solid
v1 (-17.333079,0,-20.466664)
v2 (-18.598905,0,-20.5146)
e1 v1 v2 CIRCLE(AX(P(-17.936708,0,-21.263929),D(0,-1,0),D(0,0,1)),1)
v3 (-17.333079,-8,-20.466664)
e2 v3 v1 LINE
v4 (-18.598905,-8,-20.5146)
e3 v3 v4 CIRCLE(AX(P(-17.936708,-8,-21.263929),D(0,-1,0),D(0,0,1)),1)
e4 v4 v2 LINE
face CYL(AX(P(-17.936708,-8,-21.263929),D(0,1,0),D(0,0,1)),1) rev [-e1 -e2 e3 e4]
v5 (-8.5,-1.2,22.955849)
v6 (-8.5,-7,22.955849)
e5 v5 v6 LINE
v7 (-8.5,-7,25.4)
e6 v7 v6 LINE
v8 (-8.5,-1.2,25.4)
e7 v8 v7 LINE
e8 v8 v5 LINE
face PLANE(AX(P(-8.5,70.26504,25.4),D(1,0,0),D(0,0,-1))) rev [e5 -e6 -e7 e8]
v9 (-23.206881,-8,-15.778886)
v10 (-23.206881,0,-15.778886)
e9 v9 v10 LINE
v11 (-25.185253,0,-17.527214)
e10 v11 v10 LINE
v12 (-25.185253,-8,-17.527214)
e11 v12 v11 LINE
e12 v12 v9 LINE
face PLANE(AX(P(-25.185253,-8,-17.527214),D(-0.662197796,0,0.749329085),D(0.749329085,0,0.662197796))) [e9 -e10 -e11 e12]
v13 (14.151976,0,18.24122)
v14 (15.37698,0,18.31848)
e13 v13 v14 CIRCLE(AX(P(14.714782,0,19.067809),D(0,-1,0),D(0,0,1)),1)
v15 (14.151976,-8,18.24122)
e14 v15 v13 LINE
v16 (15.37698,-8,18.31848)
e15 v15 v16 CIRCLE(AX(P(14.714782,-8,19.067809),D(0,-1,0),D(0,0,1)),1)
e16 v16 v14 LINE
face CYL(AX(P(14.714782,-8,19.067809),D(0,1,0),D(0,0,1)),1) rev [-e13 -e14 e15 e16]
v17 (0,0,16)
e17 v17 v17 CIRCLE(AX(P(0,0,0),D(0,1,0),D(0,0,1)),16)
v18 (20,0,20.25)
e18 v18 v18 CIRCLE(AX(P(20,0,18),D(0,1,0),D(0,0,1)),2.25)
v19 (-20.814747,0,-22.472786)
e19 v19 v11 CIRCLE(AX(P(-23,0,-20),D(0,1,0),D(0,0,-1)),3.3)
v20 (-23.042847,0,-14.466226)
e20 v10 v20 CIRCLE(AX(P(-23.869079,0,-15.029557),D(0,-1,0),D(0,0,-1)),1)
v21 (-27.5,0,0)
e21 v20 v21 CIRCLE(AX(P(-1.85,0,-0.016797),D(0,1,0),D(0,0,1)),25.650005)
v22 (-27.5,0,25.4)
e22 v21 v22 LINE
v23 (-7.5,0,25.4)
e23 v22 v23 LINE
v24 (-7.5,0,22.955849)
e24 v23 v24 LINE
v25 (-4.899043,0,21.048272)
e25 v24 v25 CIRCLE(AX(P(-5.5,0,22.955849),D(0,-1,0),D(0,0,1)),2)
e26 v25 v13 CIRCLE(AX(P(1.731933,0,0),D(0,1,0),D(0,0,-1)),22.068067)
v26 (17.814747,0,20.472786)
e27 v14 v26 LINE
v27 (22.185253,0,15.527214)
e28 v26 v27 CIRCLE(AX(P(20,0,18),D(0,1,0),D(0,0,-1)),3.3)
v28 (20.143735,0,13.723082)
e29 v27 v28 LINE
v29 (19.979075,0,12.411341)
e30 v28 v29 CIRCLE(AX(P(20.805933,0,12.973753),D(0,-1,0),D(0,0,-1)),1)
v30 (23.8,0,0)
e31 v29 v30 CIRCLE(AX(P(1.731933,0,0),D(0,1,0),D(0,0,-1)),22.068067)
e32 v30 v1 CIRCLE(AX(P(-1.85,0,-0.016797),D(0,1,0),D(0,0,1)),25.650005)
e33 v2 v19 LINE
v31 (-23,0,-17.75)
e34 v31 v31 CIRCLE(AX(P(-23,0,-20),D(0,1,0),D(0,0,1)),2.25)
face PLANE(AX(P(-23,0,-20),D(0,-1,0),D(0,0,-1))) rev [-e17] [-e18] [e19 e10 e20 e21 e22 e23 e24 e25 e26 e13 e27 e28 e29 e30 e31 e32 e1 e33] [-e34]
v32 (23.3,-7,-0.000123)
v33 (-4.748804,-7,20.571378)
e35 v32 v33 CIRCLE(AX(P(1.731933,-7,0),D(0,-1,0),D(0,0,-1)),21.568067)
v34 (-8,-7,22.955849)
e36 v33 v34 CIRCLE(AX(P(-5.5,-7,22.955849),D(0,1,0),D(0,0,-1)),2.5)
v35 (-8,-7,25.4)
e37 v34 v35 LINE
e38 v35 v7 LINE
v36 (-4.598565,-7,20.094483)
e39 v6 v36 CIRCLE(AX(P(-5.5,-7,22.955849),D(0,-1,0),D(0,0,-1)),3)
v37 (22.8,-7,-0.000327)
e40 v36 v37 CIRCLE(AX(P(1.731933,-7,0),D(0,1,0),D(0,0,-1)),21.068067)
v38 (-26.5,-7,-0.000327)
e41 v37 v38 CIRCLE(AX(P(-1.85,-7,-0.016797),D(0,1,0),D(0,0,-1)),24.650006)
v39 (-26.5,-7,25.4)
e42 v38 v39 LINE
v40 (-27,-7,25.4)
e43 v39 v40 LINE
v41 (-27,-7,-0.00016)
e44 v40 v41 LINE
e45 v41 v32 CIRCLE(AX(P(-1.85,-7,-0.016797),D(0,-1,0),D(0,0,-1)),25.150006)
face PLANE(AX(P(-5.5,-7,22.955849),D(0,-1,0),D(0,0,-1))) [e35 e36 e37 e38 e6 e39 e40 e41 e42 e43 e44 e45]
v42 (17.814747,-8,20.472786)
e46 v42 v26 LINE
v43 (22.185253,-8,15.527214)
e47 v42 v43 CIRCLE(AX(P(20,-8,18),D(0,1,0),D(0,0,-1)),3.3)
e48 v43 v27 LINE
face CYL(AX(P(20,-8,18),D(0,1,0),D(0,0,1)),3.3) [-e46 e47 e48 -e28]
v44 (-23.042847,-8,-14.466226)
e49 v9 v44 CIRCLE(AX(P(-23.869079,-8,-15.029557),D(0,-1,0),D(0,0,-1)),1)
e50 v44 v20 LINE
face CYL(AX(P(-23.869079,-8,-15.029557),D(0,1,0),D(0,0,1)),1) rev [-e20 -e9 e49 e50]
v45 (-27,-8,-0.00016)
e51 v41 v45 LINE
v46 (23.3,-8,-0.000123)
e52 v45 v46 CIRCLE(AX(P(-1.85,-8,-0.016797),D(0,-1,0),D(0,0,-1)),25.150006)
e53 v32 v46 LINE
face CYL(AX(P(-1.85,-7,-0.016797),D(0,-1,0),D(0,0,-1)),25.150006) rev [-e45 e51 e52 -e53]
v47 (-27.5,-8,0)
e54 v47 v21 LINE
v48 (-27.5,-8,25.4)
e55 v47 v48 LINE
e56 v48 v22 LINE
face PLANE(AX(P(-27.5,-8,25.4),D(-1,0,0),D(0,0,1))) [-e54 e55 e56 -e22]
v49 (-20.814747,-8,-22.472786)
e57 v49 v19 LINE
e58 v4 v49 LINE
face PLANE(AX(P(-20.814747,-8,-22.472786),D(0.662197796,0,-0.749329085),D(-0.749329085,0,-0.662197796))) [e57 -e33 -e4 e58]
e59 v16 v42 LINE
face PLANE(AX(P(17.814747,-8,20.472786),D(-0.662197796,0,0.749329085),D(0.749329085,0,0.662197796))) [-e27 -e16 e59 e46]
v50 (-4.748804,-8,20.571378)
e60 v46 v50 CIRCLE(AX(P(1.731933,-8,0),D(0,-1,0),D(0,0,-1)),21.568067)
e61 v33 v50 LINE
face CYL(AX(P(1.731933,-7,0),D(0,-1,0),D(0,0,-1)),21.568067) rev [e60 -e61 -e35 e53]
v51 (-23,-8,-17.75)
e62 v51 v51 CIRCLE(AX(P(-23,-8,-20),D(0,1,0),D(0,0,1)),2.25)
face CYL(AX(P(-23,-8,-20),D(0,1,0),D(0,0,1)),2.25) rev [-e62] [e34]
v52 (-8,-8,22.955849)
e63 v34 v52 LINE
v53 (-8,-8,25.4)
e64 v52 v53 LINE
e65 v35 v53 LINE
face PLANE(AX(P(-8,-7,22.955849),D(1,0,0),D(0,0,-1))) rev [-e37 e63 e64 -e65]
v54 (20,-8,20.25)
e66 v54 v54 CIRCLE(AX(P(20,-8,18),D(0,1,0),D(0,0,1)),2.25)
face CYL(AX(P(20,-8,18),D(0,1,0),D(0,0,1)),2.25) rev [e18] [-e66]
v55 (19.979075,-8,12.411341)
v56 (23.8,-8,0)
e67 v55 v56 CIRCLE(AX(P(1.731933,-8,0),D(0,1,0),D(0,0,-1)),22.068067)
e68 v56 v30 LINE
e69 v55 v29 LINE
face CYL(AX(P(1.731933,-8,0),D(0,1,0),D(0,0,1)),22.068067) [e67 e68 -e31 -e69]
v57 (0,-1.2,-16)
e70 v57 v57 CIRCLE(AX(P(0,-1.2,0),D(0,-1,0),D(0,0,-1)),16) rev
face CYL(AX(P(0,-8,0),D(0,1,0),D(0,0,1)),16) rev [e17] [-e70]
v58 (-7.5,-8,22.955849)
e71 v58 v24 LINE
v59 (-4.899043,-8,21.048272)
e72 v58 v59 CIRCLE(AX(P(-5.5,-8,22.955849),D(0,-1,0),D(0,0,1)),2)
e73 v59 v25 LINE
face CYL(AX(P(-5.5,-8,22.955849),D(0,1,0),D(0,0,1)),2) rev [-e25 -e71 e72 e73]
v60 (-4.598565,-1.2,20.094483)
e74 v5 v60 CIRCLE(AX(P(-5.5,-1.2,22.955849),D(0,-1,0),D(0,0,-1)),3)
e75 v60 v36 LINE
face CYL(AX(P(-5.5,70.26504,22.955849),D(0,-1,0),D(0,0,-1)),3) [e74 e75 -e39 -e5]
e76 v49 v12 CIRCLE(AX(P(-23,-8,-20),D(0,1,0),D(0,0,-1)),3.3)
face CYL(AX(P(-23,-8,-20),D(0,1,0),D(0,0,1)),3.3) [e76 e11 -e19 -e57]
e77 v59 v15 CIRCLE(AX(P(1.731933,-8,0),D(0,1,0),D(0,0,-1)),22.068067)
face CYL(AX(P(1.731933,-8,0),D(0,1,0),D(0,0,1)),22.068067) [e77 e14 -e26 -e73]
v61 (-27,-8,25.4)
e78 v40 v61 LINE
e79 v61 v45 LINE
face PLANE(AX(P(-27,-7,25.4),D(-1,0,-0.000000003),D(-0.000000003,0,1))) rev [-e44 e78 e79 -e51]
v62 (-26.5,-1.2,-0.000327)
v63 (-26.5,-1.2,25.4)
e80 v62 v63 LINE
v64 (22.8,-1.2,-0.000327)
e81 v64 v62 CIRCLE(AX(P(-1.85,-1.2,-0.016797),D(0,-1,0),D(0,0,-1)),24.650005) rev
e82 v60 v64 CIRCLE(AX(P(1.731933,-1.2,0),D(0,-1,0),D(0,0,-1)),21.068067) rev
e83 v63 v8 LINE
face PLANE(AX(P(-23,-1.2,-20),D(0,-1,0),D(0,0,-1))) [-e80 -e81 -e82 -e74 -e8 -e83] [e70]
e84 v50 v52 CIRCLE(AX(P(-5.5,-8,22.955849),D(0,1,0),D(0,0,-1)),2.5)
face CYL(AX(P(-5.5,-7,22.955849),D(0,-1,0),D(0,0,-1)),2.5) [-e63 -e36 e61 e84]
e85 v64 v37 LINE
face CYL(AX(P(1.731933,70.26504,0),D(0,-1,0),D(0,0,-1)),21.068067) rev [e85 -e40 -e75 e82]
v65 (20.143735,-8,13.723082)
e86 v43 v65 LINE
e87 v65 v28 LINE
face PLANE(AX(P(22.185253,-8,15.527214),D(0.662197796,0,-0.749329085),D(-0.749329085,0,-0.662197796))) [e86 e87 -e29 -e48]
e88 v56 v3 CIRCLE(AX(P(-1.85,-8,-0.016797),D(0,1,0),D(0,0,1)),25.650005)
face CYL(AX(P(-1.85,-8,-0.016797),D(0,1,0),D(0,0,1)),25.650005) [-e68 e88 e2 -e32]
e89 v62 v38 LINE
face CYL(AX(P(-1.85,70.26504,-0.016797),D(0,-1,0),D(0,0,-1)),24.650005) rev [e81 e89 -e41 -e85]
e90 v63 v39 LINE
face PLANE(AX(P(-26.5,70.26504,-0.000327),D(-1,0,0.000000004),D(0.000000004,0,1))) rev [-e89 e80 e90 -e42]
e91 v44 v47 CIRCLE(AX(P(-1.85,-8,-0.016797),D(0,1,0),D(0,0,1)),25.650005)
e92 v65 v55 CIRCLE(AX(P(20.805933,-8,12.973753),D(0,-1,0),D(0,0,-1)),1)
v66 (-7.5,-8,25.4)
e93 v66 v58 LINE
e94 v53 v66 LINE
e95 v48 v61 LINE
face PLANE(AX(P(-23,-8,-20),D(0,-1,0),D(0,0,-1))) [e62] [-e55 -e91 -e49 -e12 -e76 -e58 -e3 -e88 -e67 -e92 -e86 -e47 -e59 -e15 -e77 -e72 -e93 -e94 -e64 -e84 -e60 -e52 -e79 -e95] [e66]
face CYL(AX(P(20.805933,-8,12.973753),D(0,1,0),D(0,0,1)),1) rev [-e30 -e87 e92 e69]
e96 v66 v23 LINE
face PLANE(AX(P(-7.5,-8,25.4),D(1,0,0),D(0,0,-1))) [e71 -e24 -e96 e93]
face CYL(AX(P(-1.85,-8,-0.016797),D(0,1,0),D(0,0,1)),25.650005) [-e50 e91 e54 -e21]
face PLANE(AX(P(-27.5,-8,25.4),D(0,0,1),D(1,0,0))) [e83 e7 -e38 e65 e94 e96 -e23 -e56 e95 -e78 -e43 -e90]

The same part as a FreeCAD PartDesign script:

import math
import FreeCAD as App
import Part
import Sketcher
Q = App.Units.Quantity

doc = App.newDocument("Part")
body = doc.addObject("PartDesign::Body", "Body")

# Sketch on XZ plane
sketch1 = body.newObject("Sketcher::SketchObject", "Sketch")
sketch1.AttachmentSupport = (doc.getObject("XZ_Plane"), [""])
sketch1.MapMode = "FlatFace"
sketch1.addGeometry([
    Part.LineSegment(App.Vector(-27.5, 25.4, 0), App.Vector(-7.5, 25.4, 0)),  # 0
    Part.LineSegment(App.Vector(-7.5, 25.4, 0), App.Vector(-7.5, 23, 0)),  # 1
    Part.ArcOfCircle(Part.Circle(App.Vector(-5.5, 23, 0), App.Vector(0, 0, 1), 2), math.radians(-180), math.radians(-73)),  # 2
    Part.ArcOfCircle(Part.Circle(App.Vector(1.7, 0, 0), App.Vector(0, 0, 1), 22.1), math.radians(56), math.radians(107)),  # 3
    Part.ArcOfCircle(Part.Circle(App.Vector(14.7, 19.1, 0), App.Vector(0, 0, 1), 1), math.radians(-124), math.radians(-49)),  # 4
    Part.LineSegment(App.Vector(15.4, 18.3, 0), App.Vector(17.8, 20.5, 0)),  # 5
    Part.ArcOfCircle(Part.Circle(App.Vector(20, 18, 0), App.Vector(0, 0, 1), 3.3), math.radians(-49), math.radians(131)),  # 6
    Part.LineSegment(App.Vector(22.2, 15.5, 0), App.Vector(20.1, 13.7, 0)),  # 7
    Part.ArcOfCircle(Part.Circle(App.Vector(20.8, 13, 0), App.Vector(0, 0, 1), 1), math.radians(131), math.radians(214)),  # 8
    Part.ArcOfCircle(Part.Circle(App.Vector(1.7, 0, 0), App.Vector(0, 0, 1), 22.1), math.radians(0), math.radians(34)),  # 9
    Part.ArcOfCircle(Part.Circle(App.Vector(-1.9, 0, 0), App.Vector(0, 0, 1), 25.7), math.radians(-127), math.radians(0)),  # 10
    Part.ArcOfCircle(Part.Circle(App.Vector(-17.9, -21.3, 0), App.Vector(0, 0, 1), 1), math.radians(53), math.radians(131)),  # 11
    Part.LineSegment(App.Vector(-18.6, -20.5, 0), App.Vector(-20.8, -22.5, 0)),  # 12
    Part.ArcOfCircle(Part.Circle(App.Vector(-23, -20, 0), App.Vector(0, 0, 1), 3.3), math.radians(131), math.radians(311)),  # 13
    Part.LineSegment(App.Vector(-25.2, -17.5, 0), App.Vector(-23.2, -15.8, 0)),  # 14
    Part.ArcOfCircle(Part.Circle(App.Vector(-23.9, -15, 0), App.Vector(0, 0, 1), 1), math.radians(-49), math.radians(34)),  # 15
    Part.ArcOfCircle(Part.Circle(App.Vector(-1.8, 0, 0), App.Vector(0, 0, 1), 25.7), math.radians(180), math.radians(214)),  # 16
    Part.LineSegment(App.Vector(-27.5, 0, 0), App.Vector(-27.5, 25.4, 0)),  # 17
    Part.Circle(App.Vector(20, 18, 0), App.Vector(0, 0, 1), 2.2),  # 18
    Part.Circle(App.Vector(0, 0, 0), App.Vector(0, 0, 1), 16),  # 19
    Part.Circle(App.Vector(-23, -20, 0), App.Vector(0, 0, 1), 2.2),  # 20
], False)
sketch1.addConstraint([
    Sketcher.Constraint("Coincident", 0, 2, 1, 1),
    Sketcher.Constraint("Tangent", 1, 2, 2, 1),
    Sketcher.Constraint("Tangent", 2, 2, 3, 2),
    Sketcher.Constraint("Tangent", 3, 1, 4, 1),
    Sketcher.Constraint("Tangent", 4, 2, 5, 1),
    Sketcher.Constraint("Tangent", 5, 2, 6, 2),
    Sketcher.Constraint("Tangent", 6, 1, 7, 1),
    Sketcher.Constraint("Tangent", 7, 2, 8, 1),
    Sketcher.Constraint("Tangent", 8, 2, 9, 2),
    Sketcher.Constraint("Coincident", 9, 1, 10, 2),
    Sketcher.Constraint("Tangent", 10, 1, 11, 1),
    Sketcher.Constraint("Tangent", 11, 2, 12, 1),
    Sketcher.Constraint("Tangent", 12, 2, 13, 2),
    Sketcher.Constraint("Tangent", 13, 1, 14, 1),
    Sketcher.Constraint("Tangent", 14, 2, 15, 1),
    Sketcher.Constraint("Tangent", 15, 2, 16, 2),
    Sketcher.Constraint("Coincident", 16, 1, 17, 1),
    Sketcher.Constraint("Coincident", 17, 2, 0, 1),
    Sketcher.Constraint("Horizontal", 0),
    Sketcher.Constraint("Vertical", 1),
    Sketcher.Constraint("Vertical", 17),
    Sketcher.Constraint("Coincident", 19, 3, -1, 1),
    Sketcher.Constraint("Coincident", 9, 3, 3, 3),
    Sketcher.Constraint("Coincident", 16, 3, 10, 3),
    Sketcher.Constraint("Coincident", 18, 3, 6, 3),
    Sketcher.Constraint("Coincident", 20, 3, 13, 3),
    Sketcher.Constraint("Equal", 4, 8),
    Sketcher.Constraint("Equal", 3, 9),
    Sketcher.Constraint("Equal", 8, 11),
    Sketcher.Constraint("Equal", 6, 13),
    Sketcher.Constraint("Equal", 11, 15),
    Sketcher.Constraint("Equal", 10, 16),
    Sketcher.Constraint("Equal", 18, 20),
    Sketcher.Constraint("PointOnObject", 3, 3, -1),
    Sketcher.Constraint("PointOnObject", 9, 1, -1),
    Sketcher.Constraint("PointOnObject", 16, 1, -1),
    Sketcher.Constraint("Parallel", 5, 7),
    Sketcher.Constraint("Parallel", 7, 12),
    Sketcher.Constraint("Parallel", 12, 14),
    Sketcher.Constraint("Diameter", 19, Q("32 mm")),
    Sketcher.Constraint("Radius", 2, Q("2 mm")),
    Sketcher.Constraint("Radius", 4, Q("1 mm")),
    Sketcher.Constraint("Diameter", 18, Q("4.5 mm")),
    Sketcher.Constraint("Radius", 6, Q("3.3 mm")),
    Sketcher.Constraint("DistanceX", 0, 1, 0, 2, Q("20 mm")),
    Sketcher.Constraint("DistanceY", 17, 1, 17, 2, Q("25.4 mm")),
    Sketcher.Constraint("DistanceX", -1, 1, 6, 3, Q("20 mm")),
    Sketcher.Constraint("DistanceY", -1, 1, 6, 3, Q("18 mm")),
    Sketcher.Constraint("DistanceX", 13, 3, -1, 1, Q("23 mm")),
    Sketcher.Constraint("DistanceY", 13, 3, -1, 1, Q("20 mm")),
    Sketcher.Constraint("DistanceX", 2, 3, -1, 1, Q("5.5 mm")),
    Sketcher.Constraint("DistanceX", -1, 1, 9, 1, Q("23.8 mm")),
    Sketcher.Constraint("Radius", 3, Q("22.068067 mm")),
    Sketcher.Constraint("DistanceX", 3, 3, 8, 3, Q("19.074 mm")),
    Sketcher.Constraint("DistanceX", 15, 3, 10, 1, Q("6.536 mm")),
])
pad1 = body.newObject("PartDesign::Pad", "Pad")
pad1.Profile = sketch1
pad1.Length = 8

# Sketch on XZ plane
sketch2 = body.newObject("Sketcher::SketchObject", "Sketch001")
sketch2.AttachmentSupport = (doc.getObject("XZ_Plane"), [""])
sketch2.MapMode = "FlatFace"
sketch2.AttachmentOffset = App.Placement(App.Vector(0, 0, 8), App.Rotation())
sketch2.addGeometry([
    Part.LineSegment(App.Vector(-8.5, 23, 0), App.Vector(-8.5, 25.4, 0)),  # 0
    Part.LineSegment(App.Vector(-8.5, 25.4, 0), App.Vector(-26.5, 25.4, 0)),  # 1
    Part.LineSegment(App.Vector(-26.5, 25.4, 0), App.Vector(-26.5, 0, 0)),  # 2
    Part.ArcOfCircle(Part.Circle(App.Vector(-1.9, 0, 0), App.Vector(0, 0, 1), 24.7), math.radians(180), math.radians(214)),  # 3
    Part.ArcOfCircle(Part.Circle(App.Vector(-1.9, 0, 0), App.Vector(0, 0, 1), 24.7), math.radians(-145.71), math.radians(-127.13)),  # 4
    Part.ArcOfCircle(Part.Circle(App.Vector(-1.8, 0, 0), App.Vector(0, 0, 1), 24.7), math.radians(-127), math.radians(0)),  # 5
    Part.ArcOfCircle(Part.Circle(App.Vector(1.7, 0, 0), App.Vector(0, 0, 1), 21.1), math.radians(0), math.radians(34)),  # 6
    Part.ArcOfCircle(Part.Circle(App.Vector(1.7, 0, 0), App.Vector(0, 0, 1), 21.1), math.radians(34), math.radians(56)),  # 7
    Part.ArcOfCircle(Part.Circle(App.Vector(1.7, 0, 0), App.Vector(0, 0, 1), 21.1), math.radians(56), math.radians(107)),  # 8
    Part.ArcOfCircle(Part.Circle(App.Vector(-5.5, 23, 0), App.Vector(0, 0, 1), 3), math.radians(180), math.radians(287)),  # 9
], False)
sketch2.addConstraint([
    Sketcher.Constraint("Coincident", 0, 2, 1, 1),
    Sketcher.Constraint("Coincident", 1, 2, 2, 1),
    Sketcher.Constraint("Coincident", 2, 2, 3, 1),
    Sketcher.Constraint("Tangent", 3, 2, 4, 1),
    Sketcher.Constraint("Tangent", 4, 2, 5, 1),
    Sketcher.Constraint("Coincident", 5, 2, 6, 1),
    Sketcher.Constraint("Tangent", 6, 2, 7, 1),
    Sketcher.Constraint("Tangent", 7, 2, 8, 1),
    Sketcher.Constraint("Tangent", 8, 2, 9, 2),
    Sketcher.Constraint("Tangent", 9, 1, 0, 1),
    Sketcher.Constraint("Vertical", 0),
    Sketcher.Constraint("Horizontal", 1),
    Sketcher.Constraint("Vertical", 2),
    Sketcher.Constraint("Coincident", 5, 3, 3, 3),
    Sketcher.Constraint("Coincident", 8, 3, 6, 3),
    Sketcher.Constraint("PointOnObject", 6, 3, -1),
    Sketcher.Constraint("Horizontal", 2, 2, 5, 2),
    Sketcher.Constraint("Radius", 9, Q("3 mm")),
    Sketcher.Constraint("DistanceX", 1, 2, 1, 1, Q("18 mm")),
    Sketcher.Constraint("DistanceX", 9, 3, -1, 1, Q("5.5 mm")),
    Sketcher.Constraint("DistanceY", -1, 1, 0, 2, Q("25.4 mm")),
    Sketcher.Constraint("DistanceX", -1, 1, 5, 2, Q("22.8 mm")),
    Sketcher.Constraint("Radius", 6, Q("21.068067 mm")),
    Sketcher.Constraint("DistanceY", 4, 2, -1, 1, Q("19.669398 mm")),
    Sketcher.Constraint("DistanceY", 3, 2, 3, 3, Q("13.886099 mm")),
    Sketcher.Constraint("DistanceY", 4, 2, 3, 3, Q("19.652601 mm")),
    Sketcher.Constraint("DistanceY", 2, 2, 2, 1, Q("25.400327 mm")),
    Sketcher.Constraint("DistanceY", -1, 1, 6, 2, Q("11.848929 mm")),
    Sketcher.Constraint("DistanceX", -1, 1, 7, 2, Q("13.58917 mm")),
])
pocket1 = body.newObject("PartDesign::Pocket", "Pocket")
pocket1.Profile = sketch2
pocket1.Length = 6.8

# Sketch on XZ plane
sketch3 = body.newObject("Sketcher::SketchObject", "Sketch002")
sketch3.AttachmentSupport = (doc.getObject("XZ_Plane"), [""])
sketch3.MapMode = "FlatFace"
sketch3.AttachmentOffset = App.Placement(App.Vector(0, 0, 8), App.Rotation())
sketch3.addGeometry([
    Part.LineSegment(App.Vector(-8.5, 25.4, 0), App.Vector(-8.5, 22.955849, 0)),  # 0
    Part.ArcOfCircle(Part.Circle(App.Vector(-5.5, 22.955849, 0), App.Vector(0, 0, 1), 3), math.radians(180), math.radians(287.486335)),  # 1
    Part.ArcOfCircle(Part.Circle(App.Vector(1.731933, 0, 0), App.Vector(0, 0, 1), 21.068067), math.radians(-0.000889), math.radians(107.486335)),  # 2
    Part.ArcOfCircle(Part.Circle(App.Vector(-1.85, -0.016797, 0), App.Vector(0, 0, 1), 24.650006), math.radians(179.961719), math.radians(360.038282)),  # 3
    Part.LineSegment(App.Vector(-26.5, -0.000327, 0), App.Vector(-26.5, 25.4, 0)),  # 4
    Part.LineSegment(App.Vector(-26.5, 25.4, 0), App.Vector(-27, 25.4, 0)),  # 5
    Part.LineSegment(App.Vector(-27, 25.4, 0), App.Vector(-27, -0.00016, 0)),  # 6
    Part.ArcOfCircle(Part.Circle(App.Vector(-1.85, -0.016797, 0), App.Vector(0, 0, 1), 25.150006), math.radians(179.962099), math.radians(360.037986)),  # 7
    Part.ArcOfCircle(Part.Circle(App.Vector(1.731933, 0, 0), App.Vector(0, 0, 1), 21.568067), math.radians(-0.000326), math.radians(107.486335)),  # 8
    Part.ArcOfCircle(Part.Circle(App.Vector(-5.5, 22.955849, 0), App.Vector(0, 0, 1), 2.5), math.radians(180), math.radians(287.486335)),  # 9
    Part.LineSegment(App.Vector(-8, 22.955849, 0), App.Vector(-8, 25.4, 0)),  # 10
    Part.LineSegment(App.Vector(-8, 25.4, 0), App.Vector(-8.5, 25.4, 0)),  # 11
], False)
sketch3.addConstraint([
    Sketcher.Constraint("Coincident", 0, 2, 1, 1),
    Sketcher.Constraint("Coincident", 1, 2, 2, 2),
    Sketcher.Constraint("Coincident", 2, 1, 3, 2),
    Sketcher.Constraint("Coincident", 3, 1, 4, 1),
    Sketcher.Constraint("Coincident", 4, 2, 5, 1),
    Sketcher.Constraint("Coincident", 5, 2, 6, 1),
    Sketcher.Constraint("Coincident", 6, 2, 7, 1),
    Sketcher.Constraint("Coincident", 7, 2, 8, 1),
    Sketcher.Constraint("Coincident", 8, 2, 9, 2),
    Sketcher.Constraint("Coincident", 9, 1, 10, 1),
    Sketcher.Constraint("Coincident", 10, 2, 11, 1),
    Sketcher.Constraint("Coincident", 11, 2, 0, 1),
    Sketcher.Constraint("Vertical", 0),
    Sketcher.Constraint("Vertical", 4),
    Sketcher.Constraint("Horizontal", 5),
    Sketcher.Constraint("Vertical", 6),
    Sketcher.Constraint("Vertical", 10),
    Sketcher.Constraint("Horizontal", 11),
    Sketcher.Constraint("Coincident", 7, 3, 3, 3),
    Sketcher.Constraint("Coincident", 8, 3, 2, 3),
    Sketcher.Constraint("Coincident", 9, 3, 1, 3),
    Sketcher.Constraint("PointOnObject", 2, 3, -1),
    Sketcher.Constraint("Radius", 1, Q("3 mm")),
    Sketcher.Constraint("Radius", 9, Q("2.5 mm")),
    Sketcher.Constraint("DistanceX", 5, 2, 5, 1, Q("0.5 mm")),
    Sketcher.Constraint("DistanceX", 5, 2, -1, 1, Q("27 mm")),
    Sketcher.Constraint("DistanceX", 9, 1, -1, 1, Q("8 mm")),
    Sketcher.Constraint("DistanceX", -1, 1, 2, 1, Q("22.8 mm")),
    Sketcher.Constraint("DistanceY", -1, 1, 4, 2, Q("25.4 mm")),
    Sketcher.Constraint("DistanceY", -1, 1, 10, 2, Q("25.4 mm")),
    Sketcher.Constraint("DistanceX", 3, 3, -1, 1, Q("1.85 mm")),
    Sketcher.Constraint("Radius", 2, Q("21.068067 mm")),
    Sketcher.Constraint("DistanceY", 0, 2, 0, 1, Q("2.444151 mm")),
    Sketcher.Constraint("DistanceY", 6, 2, 6, 1, Q("25.40016 mm")),
    Sketcher.Constraint("DistanceY", 10, 1, 10, 2, Q("2.444151 mm")),
    Sketcher.Constraint("DistanceY", 4, 1, 4, 2, Q("25.400327 mm")),
    Sketcher.Constraint("DistanceY", 7, 3, 1, 2, Q("20.11128 mm")),
    Sketcher.Constraint("DistanceY", 7, 3, 2, 1, Q("0.01647 mm")),
    Sketcher.Constraint("DistanceX", 8, 2, 1, 2, Q("0.150239 mm")),
])
pocket2 = body.newObject("PartDesign::Pocket", "Pocket001")
pocket2.Profile = sketch3
pocket2.Length = 1

doc.recompute()
